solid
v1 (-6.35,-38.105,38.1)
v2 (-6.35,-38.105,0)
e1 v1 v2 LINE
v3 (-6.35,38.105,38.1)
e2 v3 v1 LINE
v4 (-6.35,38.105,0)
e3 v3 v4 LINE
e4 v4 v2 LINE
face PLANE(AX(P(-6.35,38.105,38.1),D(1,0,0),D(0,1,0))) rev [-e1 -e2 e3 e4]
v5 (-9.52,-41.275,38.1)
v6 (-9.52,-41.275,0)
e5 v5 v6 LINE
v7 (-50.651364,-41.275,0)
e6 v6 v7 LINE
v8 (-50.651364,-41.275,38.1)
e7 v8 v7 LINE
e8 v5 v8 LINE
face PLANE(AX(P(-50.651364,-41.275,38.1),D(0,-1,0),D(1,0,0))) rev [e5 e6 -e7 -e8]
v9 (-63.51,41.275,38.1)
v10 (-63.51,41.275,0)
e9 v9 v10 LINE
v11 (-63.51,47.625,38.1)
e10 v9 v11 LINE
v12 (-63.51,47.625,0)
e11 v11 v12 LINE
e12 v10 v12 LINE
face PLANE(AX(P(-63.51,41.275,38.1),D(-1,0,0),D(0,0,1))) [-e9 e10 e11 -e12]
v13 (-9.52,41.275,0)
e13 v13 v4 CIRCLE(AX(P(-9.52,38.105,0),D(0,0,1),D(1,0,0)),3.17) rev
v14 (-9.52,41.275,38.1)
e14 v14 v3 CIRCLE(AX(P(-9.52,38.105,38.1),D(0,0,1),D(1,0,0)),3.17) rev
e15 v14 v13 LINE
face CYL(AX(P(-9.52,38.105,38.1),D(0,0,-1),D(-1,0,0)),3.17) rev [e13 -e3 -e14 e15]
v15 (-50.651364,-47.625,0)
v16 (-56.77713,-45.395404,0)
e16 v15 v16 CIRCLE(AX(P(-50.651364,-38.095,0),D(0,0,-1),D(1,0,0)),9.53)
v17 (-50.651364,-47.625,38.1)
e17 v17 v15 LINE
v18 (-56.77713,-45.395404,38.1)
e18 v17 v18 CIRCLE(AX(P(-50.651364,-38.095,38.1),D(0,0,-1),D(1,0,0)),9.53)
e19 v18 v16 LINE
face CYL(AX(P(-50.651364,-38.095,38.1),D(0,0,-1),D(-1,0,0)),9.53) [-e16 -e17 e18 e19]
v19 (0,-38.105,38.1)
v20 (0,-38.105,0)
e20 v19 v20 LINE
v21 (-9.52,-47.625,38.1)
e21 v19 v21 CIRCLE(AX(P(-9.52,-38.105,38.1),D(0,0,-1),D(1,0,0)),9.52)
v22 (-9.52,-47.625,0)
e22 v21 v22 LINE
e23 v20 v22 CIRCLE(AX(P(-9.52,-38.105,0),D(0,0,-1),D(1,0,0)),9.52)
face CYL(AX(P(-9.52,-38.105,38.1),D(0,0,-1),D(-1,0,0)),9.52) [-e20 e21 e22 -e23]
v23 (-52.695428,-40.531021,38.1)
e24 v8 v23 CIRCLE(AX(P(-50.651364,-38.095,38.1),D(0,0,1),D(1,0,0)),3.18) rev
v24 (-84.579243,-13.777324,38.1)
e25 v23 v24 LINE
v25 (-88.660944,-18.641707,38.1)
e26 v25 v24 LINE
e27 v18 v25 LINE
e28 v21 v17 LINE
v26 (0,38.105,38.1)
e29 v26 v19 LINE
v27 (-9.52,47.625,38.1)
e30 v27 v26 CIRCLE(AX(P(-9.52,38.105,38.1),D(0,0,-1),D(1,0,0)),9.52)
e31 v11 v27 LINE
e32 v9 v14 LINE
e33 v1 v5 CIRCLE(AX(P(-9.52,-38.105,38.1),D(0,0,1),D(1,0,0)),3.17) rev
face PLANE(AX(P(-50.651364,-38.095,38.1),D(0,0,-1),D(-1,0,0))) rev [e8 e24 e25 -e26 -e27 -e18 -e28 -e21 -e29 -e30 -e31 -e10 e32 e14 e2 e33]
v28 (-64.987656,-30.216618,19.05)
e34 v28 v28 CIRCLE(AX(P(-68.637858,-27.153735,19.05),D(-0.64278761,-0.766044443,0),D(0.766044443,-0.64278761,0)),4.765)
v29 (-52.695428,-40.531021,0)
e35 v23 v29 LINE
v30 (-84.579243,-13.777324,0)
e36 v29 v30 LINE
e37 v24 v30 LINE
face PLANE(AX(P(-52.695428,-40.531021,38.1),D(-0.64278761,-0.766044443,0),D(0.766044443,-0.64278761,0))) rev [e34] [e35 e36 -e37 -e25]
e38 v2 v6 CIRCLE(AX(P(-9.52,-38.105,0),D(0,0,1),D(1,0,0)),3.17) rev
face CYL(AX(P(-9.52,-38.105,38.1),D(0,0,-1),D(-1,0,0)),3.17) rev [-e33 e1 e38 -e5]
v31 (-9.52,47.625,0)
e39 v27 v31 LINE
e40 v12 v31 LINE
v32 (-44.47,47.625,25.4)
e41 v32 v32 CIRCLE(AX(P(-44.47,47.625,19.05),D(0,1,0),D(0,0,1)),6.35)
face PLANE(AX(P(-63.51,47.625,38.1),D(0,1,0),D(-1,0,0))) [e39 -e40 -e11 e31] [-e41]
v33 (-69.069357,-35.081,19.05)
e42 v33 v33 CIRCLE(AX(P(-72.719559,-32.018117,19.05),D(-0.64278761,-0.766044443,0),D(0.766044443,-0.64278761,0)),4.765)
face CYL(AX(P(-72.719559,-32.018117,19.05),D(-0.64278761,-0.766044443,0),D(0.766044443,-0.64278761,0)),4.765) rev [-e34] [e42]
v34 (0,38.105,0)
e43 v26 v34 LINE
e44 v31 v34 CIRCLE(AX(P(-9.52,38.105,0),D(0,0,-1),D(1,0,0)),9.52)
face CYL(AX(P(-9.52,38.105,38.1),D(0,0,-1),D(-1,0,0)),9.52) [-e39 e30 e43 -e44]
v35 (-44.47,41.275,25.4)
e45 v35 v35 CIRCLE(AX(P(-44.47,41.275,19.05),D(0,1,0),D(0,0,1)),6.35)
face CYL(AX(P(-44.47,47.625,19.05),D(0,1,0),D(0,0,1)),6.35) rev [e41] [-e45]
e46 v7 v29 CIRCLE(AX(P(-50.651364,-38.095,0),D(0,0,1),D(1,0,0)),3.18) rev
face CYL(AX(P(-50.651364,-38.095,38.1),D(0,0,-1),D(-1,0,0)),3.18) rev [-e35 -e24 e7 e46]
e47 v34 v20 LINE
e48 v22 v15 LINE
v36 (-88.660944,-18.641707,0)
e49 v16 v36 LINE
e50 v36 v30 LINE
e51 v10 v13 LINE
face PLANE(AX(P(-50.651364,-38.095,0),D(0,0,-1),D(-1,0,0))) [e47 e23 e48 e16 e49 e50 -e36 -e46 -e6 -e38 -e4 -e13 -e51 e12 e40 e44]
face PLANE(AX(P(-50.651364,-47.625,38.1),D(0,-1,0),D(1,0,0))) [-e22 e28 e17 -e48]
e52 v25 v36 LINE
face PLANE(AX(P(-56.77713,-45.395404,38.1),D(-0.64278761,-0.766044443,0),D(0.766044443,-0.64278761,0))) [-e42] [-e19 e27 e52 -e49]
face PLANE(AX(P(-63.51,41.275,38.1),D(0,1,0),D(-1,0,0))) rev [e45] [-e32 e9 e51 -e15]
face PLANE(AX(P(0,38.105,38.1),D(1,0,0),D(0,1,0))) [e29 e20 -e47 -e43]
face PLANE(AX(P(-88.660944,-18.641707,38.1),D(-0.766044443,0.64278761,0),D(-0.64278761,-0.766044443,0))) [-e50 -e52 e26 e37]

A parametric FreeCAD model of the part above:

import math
import FreeCAD as App
import Part
import Sketcher

V = App.Vector
Q = App.Units.Quantity

doc = App.newDocument("Part")
body = doc.addObject("PartDesign::Body", "Body")

sketch1 = doc.addObject("Sketcher::SketchObject", "Sketch")
body.addObject(sketch1)
sketch1.AttachmentSupport = (doc.XY_Plane, [""])
sketch1.MapMode = "FlatFace"
sketch1.addGeometry(Part.LineSegment(V(-9.5, 47.6, 0), V(-63.5, 47.6, 0)), False)
sketch1.addGeometry(Part.LineSegment(V(-63.5, 47.6, 0), V(-63.5, 41.3, 0)), False)
sketch1.addGeometry(Part.LineSegment(V(-63.5, 41.3, 0), V(-9.5, 41.3, 0)), False)
sketch1.addGeometry(Part.ArcOfCircle(Part.Circle(V(-9.5, 38.1, 0), V(0, 0, 1), 3.2), math.radians(0), math.radians(90)), False)
sketch1.addGeometry(Part.LineSegment(V(-6.3, 38.1, 0), V(-6.3, -38.1, 0)), False)
sketch1.addGeometry(Part.ArcOfCircle(Part.Circle(V(-9.5, -38.1, 0), V(0, 0, 1), 3.2), math.radians(-90), math.radians(0)), False)
sketch1.addGeometry(Part.LineSegment(V(-9.5, -41.3, 0), V(-50.7, -41.3, 0)), False)
sketch1.addGeometry(Part.ArcOfCircle(Part.Circle(V(-50.7, -38.1, 0), V(0, 0, 1), 3.2), math.radians(-130), math.radians(-90)), False)
sketch1.addGeometry(Part.LineSegment(V(-52.7, -40.5, 0), V(-84.6, -13.8, 0)), False)
sketch1.addGeometry(Part.LineSegment(V(-84.6, -13.8, 0), V(-88.7, -18.6, 0)), False)
sketch1.addGeometry(Part.LineSegment(V(-88.7, -18.6, 0), V(-56.8, -45.4, 0)), False)
sketch1.addGeometry(Part.ArcOfCircle(Part.Circle(V(-50.7, -38.1, 0), V(0, 0, 1), 9.5), math.radians(-130), math.radians(-90)), False)
sketch1.addGeometry(Part.LineSegment(V(-50.7, -47.6, 0), V(-9.5, -47.6, 0)), False)
sketch1.addGeometry(Part.ArcOfCircle(Part.Circle(V(-9.5, -38.1, 0), V(0, 0, 1), 9.5), math.radians(-90), math.radians(0)), False)
sketch1.addGeometry(Part.LineSegment(V(0, -38.1, 0), V(0, 38.1, 0)), False)
sketch1.addGeometry(Part.ArcOfCircle(Part.Circle(V(-9.5, 38.1, 0), V(0, 0, 1), 9.5), math.radians(0), math.radians(90)), False)
sketch1.addConstraint(Sketcher.Constraint("Coincident", 0, 2, 1, 1))
sketch1.addConstraint(Sketcher.Constraint("Coincident", 1, 2, 2, 1))
sketch1.addConstraint(Sketcher.Constraint("Tangent", 2, 2, 3, 2))
sketch1.addConstraint(Sketcher.Constraint("Tangent", 3, 1, 4, 1))
sketch1.addConstraint(Sketcher.Constraint("Tangent", 4, 2, 5, 2))
sketch1.addConstraint(Sketcher.Constraint("Tangent", 5, 1, 6, 1))
sketch1.addConstraint(Sketcher.Constraint("Tangent", 6, 2, 7, 2))
sketch1.addConstraint(Sketcher.Constraint("Tangent", 7, 1, 8, 1))
sketch1.addConstraint(Sketcher.Constraint("Coincident", 8, 2, 9, 1))
sketch1.addConstraint(Sketcher.Constraint("Coincident", 9, 2, 10, 1))
sketch1.addConstraint(Sketcher.Constraint("Tangent", 10, 2, 11, 1))
sketch1.addConstraint(Sketcher.Constraint("Tangent", 11, 2, 12, 1))
sketch1.addConstraint(Sketcher.Constraint("Tangent", 12, 2, 13, 1))
sketch1.addConstraint(Sketcher.Constraint("Tangent", 13, 2, 14, 1))
sketch1.addConstraint(Sketcher.Constraint("Tangent", 14, 2, 15, 1))
sketch1.addConstraint(Sketcher.Constraint("Tangent", 15, 2, 0, 1))
sketch1.addConstraint(Sketcher.Constraint("Horizontal", 0))
sketch1.addConstraint(Sketcher.Constraint("Vertical", 1))
sketch1.addConstraint(Sketcher.Constraint("Horizontal", 2))
sketch1.addConstraint(Sketcher.Constraint("Vertical", 4))
sketch1.addConstraint(Sketcher.Constraint("Horizontal", 6))
sketch1.addConstraint(Sketcher.Constraint("Horizontal", 12))
sketch1.addConstraint(Sketcher.Constraint("Vertical", 14))
sketch1.addConstraint(Sketcher.Constraint("Coincident", 11, 3, 7, 3))
sketch1.addConstraint(Sketcher.Constraint("Coincident", 13, 3, 5, 3))
sketch1.addConstraint(Sketcher.Constraint("Coincident", 15, 3, 3, 3))
sketch1.addConstraint(Sketcher.Constraint("Equal", 3, 5))
sketch1.addConstraint(Sketcher.Constraint("Symmetric", 13, 2, 14, 2, -1, 1))
sketch1.addConstraint(Sketcher.Constraint("Perpendicular", 8, 9))
sketch1.addConstraint(Sketcher.Constraint("Perpendicular", 9, 10))
sketch1.addConstraint(Sketcher.Constraint("Angle", 8, Q("140 deg")))
sketch1.addConstraint(Sketcher.Constraint("DistanceY", 7, 3, 3, 3, Q("3 in")))
sketch1.addConstraint(Sketcher.Constraint("DistanceY", 1, 2, 1, 1, Q("0.25 in")))
sketch1.addConstraint(Sketcher.Constraint("Radius", 3, 3.17))
sketch1.addConstraint(Sketcher.Constraint("Radius", 7, 3.18))
sketch1.addConstraint(Sketcher.Constraint("DistanceX", 0, 2, 0, 1, 53.99))
sketch1.addConstraint(Sketcher.Constraint("DistanceX", 6, 2, 6, 1, 41.131364))
sketch1.addConstraint(Sketcher.Constraint("DistanceX", 8, 2, 11, 3, 33.927879))
pad1 = doc.addObject("PartDesign::Pad", "Pad")
body.addObject(pad1)
pad1.Profile = sketch1
pad1.Length = Q("1.5 in")

sketch2 = doc.addObject("Sketcher::SketchObject", "Sketch001")
body.addObject(sketch2)
sketch2.AttachmentSupport = (doc.XZ_Plane, [""])
sketch2.MapMode = "FlatFace"
sketch2.AttachmentOffset = App.Placement(V(0, 0, -1.875 * 25.4), App.Rotation())
sketch2.addGeometry(Part.Circle(V(-44, 19, 0), V(0, 0, 1), 6), False)
sketch2.addConstraint(Sketcher.Constraint("Diameter", 0, Q("0.5 in")))
sketch2.addConstraint(Sketcher.Constraint("DistanceY", -1, 1, 0, 3, Q("0.75 in")))
sketch2.addConstraint(Sketcher.Constraint("DistanceX", 0, 3, -1, 1, 44.47))
doc.recompute()
hole = doc.addObject("PartDesign::Hole", "Hole")
body.addObject(hole)
hole.Profile = sketch2
hole.ThreadType = "None"
hole.Diameter = Q("0.5 in")
hole.DepthType = "Dimension"
hole.Depth = Q("0.25 in")
hole.DrillPoint = "Angled"
hole.DrillPointAngle = 118
hole.Reversed = True

sketch3 = doc.addObject("Sketcher::SketchObject", "Sketch002")
body.addObject(sketch3)
sketch3.Placement = App.Placement(V(-45.811815, -54.596395, 0), App.Rotation(V(-0.766044443, 0.64278761, 0), V(0, 0, -1), V(-0.64278761, -0.766044443, 0), "ZXY"))
sketch3.addGeometry(Part.Circle(V(35.1, -19.1, 0), V(0, 0, 1), 4.8), False)
sketch3.addConstraint(Sketcher.Constraint("Diameter", 0, 9.53))
sketch3.addConstraint(Sketcher.Constraint("DistanceY", 0, 3, -1, 1, Q("0.75 in")))
sketch3.addConstraint(Sketcher.Constraint("DistanceX", -1, 1, 0, 3, 35.125565))
doc.recompute()
hole2 = doc.addObject("PartDesign::Hole", "Hole001")
body.addObject(hole2)
hole2.Profile = sketch3
hole2.ThreadType = "None"
hole2.Diameter = 9.53
hole2.DepthType = "Dimension"
hole2.Depth = Q("0.25 in")
hole2.DrillPoint = "Angled"
hole2.DrillPointAngle = 118

doc.recompute()
